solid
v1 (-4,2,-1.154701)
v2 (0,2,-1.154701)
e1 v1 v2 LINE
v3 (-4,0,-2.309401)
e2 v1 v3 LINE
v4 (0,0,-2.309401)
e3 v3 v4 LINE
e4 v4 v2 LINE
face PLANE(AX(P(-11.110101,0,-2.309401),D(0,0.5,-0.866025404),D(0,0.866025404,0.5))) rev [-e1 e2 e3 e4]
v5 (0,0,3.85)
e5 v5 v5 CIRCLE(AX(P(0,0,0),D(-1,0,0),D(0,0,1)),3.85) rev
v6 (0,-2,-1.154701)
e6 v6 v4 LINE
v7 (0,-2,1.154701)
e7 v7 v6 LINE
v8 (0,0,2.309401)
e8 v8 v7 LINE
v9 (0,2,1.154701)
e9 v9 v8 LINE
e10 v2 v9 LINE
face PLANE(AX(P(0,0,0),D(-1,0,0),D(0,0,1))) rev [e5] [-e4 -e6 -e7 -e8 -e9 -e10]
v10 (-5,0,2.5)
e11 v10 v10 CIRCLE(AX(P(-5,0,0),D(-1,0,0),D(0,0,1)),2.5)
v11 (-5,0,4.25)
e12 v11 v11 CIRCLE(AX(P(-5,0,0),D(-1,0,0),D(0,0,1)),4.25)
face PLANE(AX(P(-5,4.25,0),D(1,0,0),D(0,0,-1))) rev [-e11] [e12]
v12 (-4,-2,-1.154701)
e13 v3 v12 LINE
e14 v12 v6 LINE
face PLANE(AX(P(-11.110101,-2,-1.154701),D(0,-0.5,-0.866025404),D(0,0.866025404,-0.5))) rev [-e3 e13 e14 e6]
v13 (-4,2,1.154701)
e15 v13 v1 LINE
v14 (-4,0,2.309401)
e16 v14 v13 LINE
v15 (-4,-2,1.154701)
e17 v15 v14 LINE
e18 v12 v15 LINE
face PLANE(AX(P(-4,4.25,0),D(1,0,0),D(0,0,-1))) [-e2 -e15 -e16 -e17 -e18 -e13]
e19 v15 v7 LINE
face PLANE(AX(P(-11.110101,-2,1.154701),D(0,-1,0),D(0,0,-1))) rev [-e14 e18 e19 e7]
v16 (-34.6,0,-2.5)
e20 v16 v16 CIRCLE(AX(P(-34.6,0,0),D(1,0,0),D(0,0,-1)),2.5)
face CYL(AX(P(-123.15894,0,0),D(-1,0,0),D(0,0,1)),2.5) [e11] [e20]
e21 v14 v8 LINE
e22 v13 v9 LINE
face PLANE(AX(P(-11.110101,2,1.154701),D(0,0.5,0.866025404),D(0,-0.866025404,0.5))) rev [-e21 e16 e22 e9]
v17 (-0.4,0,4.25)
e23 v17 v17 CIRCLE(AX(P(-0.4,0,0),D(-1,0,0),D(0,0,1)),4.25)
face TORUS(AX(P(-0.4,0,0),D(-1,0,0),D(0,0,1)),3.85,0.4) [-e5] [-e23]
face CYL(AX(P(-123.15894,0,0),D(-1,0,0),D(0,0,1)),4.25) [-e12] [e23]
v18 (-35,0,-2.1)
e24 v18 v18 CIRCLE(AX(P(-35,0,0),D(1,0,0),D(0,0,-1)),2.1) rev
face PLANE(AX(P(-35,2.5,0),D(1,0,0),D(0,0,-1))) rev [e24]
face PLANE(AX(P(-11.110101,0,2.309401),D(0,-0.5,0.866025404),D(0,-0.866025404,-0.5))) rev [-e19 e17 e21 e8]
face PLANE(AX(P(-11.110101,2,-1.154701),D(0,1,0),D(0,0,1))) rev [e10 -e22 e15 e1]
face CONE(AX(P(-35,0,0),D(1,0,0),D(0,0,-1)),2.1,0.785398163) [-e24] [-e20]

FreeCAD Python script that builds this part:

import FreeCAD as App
import Part
import Sketcher

V = App.Vector
Q = App.Units.Quantity


def edges_at(feature, points):
    """Names of the edges that pass closest to the given points."""
    edges = feature.Shape.Edges
    near = lambda p: min(range(len(edges)), key=lambda i: edges[i].distToShape(Part.Vertex(*p))[0])
    return sorted({f"Edge{near(p) + 1}" for p in points})


def add_polygon(sketch, points):
    """Adds a closed chain of lines whose ends are joined by coincident constraints."""
    first, n = sketch.GeometryCount, len(points)
    for a, b in zip(points, points[1:] + points[:1]):
        sketch.addGeometry(Part.LineSegment(App.Vector(*a, 0), App.Vector(*b, 0)), False)
    for i in range(n):
        sketch.addConstraint(Sketcher.Constraint("Coincident", first + i, 2, first + (i + 1) % n, 1))

doc = App.newDocument("Part")
body = doc.addObject("PartDesign::Body", "Body")

# Sketch on XY plane
sketch1 = body.newObject("Sketcher::SketchObject", "Sketch")
sketch1.AttachmentSupport = (doc.getObject("XY_Plane"), [""])
sketch1.MapMode = "FlatFace"
add_polygon(sketch1, [(0, 0), (0, 4.2), (-5, 4.2), (-5, 2.5), (-35, 2.5), (-35, 0)])  # lines 0-5
sketch1.addConstraint([
    Sketcher.Constraint("Vertical", 0),
    Sketcher.Constraint("Horizontal", 1),
    Sketcher.Constraint("Vertical", 2),
    Sketcher.Constraint("Horizontal", 3),
    Sketcher.Constraint("Vertical", 4),
    Sketcher.Constraint("Horizontal", 5),
    Sketcher.Constraint("Coincident", 5, 2, -1, 1),
    Sketcher.Constraint("DistanceX", 1, 2, 1, 1, 5.0),
    Sketcher.Constraint("DistanceX", 3, 2, 3, 1, 30.0),
    Sketcher.Constraint("DistanceY", 4, 2, 4, 1, 2.5),
    Sketcher.Constraint("DistanceY", 0, 1, 0, 2, 4.25),
])
revolution = body.newObject("PartDesign::Revolution", "Revolution")
revolution.Profile = sketch1
revolution.ReferenceAxis = (sketch1, ["H_Axis"])
revolution.Angle = 360
doc.recompute()

chamfer = body.newObject("PartDesign::Chamfer", "Chamfer")
chamfer.Base = (revolution, edges_at(revolution, [(-35, -2.5, 0)]))
chamfer.Size = 0.4
doc.recompute()

fillet = body.newObject("PartDesign::Fillet", "Fillet")
fillet.Base = (chamfer, edges_at(chamfer, [(0, -4.25, 0)]))
fillet.Radius = 0.4

# Sketch on YZ plane
sketch2 = body.newObject("Sketcher::SketchObject", "Sketch001")
sketch2.AttachmentSupport = (doc.getObject("YZ_Plane"), [""])
sketch2.MapMode = "FlatFace"
add_polygon(sketch2, [(0, -2.3), (2, -1.2), (2, 1.2), (0, 2.3), (-2, 1.2), (-2, -1.2)])  # lines 0-5
sketch2.addConstraint([
    Sketcher.Constraint("Vertical", 1),
    Sketcher.Constraint("Vertical", 4),
    Sketcher.Constraint("Symmetric", 0, 2, 3, 2, -1, 1),
    Sketcher.Constraint("Symmetric", 2, 2, 5, 2, -1, 1),
    Sketcher.Constraint("PointOnObject", 2, 2, -2),
    Sketcher.Constraint("Parallel", 2, 5),
    Sketcher.Constraint("Horizontal", 1, 2, 3, 2),
    Sketcher.Constraint("Angle", 0, Q("30 deg")),
    Sketcher.Constraint("DistanceX", -1, 1, 0, 2, 2.0),
    Sketcher.Constraint("DistanceY", 1, 1, 1, 2, 2.309401),
])
pocket1 = body.newObject("PartDesign::Pocket", "Pocket")
pocket1.Profile = sketch2
pocket1.Length = 4

doc.recompute()
